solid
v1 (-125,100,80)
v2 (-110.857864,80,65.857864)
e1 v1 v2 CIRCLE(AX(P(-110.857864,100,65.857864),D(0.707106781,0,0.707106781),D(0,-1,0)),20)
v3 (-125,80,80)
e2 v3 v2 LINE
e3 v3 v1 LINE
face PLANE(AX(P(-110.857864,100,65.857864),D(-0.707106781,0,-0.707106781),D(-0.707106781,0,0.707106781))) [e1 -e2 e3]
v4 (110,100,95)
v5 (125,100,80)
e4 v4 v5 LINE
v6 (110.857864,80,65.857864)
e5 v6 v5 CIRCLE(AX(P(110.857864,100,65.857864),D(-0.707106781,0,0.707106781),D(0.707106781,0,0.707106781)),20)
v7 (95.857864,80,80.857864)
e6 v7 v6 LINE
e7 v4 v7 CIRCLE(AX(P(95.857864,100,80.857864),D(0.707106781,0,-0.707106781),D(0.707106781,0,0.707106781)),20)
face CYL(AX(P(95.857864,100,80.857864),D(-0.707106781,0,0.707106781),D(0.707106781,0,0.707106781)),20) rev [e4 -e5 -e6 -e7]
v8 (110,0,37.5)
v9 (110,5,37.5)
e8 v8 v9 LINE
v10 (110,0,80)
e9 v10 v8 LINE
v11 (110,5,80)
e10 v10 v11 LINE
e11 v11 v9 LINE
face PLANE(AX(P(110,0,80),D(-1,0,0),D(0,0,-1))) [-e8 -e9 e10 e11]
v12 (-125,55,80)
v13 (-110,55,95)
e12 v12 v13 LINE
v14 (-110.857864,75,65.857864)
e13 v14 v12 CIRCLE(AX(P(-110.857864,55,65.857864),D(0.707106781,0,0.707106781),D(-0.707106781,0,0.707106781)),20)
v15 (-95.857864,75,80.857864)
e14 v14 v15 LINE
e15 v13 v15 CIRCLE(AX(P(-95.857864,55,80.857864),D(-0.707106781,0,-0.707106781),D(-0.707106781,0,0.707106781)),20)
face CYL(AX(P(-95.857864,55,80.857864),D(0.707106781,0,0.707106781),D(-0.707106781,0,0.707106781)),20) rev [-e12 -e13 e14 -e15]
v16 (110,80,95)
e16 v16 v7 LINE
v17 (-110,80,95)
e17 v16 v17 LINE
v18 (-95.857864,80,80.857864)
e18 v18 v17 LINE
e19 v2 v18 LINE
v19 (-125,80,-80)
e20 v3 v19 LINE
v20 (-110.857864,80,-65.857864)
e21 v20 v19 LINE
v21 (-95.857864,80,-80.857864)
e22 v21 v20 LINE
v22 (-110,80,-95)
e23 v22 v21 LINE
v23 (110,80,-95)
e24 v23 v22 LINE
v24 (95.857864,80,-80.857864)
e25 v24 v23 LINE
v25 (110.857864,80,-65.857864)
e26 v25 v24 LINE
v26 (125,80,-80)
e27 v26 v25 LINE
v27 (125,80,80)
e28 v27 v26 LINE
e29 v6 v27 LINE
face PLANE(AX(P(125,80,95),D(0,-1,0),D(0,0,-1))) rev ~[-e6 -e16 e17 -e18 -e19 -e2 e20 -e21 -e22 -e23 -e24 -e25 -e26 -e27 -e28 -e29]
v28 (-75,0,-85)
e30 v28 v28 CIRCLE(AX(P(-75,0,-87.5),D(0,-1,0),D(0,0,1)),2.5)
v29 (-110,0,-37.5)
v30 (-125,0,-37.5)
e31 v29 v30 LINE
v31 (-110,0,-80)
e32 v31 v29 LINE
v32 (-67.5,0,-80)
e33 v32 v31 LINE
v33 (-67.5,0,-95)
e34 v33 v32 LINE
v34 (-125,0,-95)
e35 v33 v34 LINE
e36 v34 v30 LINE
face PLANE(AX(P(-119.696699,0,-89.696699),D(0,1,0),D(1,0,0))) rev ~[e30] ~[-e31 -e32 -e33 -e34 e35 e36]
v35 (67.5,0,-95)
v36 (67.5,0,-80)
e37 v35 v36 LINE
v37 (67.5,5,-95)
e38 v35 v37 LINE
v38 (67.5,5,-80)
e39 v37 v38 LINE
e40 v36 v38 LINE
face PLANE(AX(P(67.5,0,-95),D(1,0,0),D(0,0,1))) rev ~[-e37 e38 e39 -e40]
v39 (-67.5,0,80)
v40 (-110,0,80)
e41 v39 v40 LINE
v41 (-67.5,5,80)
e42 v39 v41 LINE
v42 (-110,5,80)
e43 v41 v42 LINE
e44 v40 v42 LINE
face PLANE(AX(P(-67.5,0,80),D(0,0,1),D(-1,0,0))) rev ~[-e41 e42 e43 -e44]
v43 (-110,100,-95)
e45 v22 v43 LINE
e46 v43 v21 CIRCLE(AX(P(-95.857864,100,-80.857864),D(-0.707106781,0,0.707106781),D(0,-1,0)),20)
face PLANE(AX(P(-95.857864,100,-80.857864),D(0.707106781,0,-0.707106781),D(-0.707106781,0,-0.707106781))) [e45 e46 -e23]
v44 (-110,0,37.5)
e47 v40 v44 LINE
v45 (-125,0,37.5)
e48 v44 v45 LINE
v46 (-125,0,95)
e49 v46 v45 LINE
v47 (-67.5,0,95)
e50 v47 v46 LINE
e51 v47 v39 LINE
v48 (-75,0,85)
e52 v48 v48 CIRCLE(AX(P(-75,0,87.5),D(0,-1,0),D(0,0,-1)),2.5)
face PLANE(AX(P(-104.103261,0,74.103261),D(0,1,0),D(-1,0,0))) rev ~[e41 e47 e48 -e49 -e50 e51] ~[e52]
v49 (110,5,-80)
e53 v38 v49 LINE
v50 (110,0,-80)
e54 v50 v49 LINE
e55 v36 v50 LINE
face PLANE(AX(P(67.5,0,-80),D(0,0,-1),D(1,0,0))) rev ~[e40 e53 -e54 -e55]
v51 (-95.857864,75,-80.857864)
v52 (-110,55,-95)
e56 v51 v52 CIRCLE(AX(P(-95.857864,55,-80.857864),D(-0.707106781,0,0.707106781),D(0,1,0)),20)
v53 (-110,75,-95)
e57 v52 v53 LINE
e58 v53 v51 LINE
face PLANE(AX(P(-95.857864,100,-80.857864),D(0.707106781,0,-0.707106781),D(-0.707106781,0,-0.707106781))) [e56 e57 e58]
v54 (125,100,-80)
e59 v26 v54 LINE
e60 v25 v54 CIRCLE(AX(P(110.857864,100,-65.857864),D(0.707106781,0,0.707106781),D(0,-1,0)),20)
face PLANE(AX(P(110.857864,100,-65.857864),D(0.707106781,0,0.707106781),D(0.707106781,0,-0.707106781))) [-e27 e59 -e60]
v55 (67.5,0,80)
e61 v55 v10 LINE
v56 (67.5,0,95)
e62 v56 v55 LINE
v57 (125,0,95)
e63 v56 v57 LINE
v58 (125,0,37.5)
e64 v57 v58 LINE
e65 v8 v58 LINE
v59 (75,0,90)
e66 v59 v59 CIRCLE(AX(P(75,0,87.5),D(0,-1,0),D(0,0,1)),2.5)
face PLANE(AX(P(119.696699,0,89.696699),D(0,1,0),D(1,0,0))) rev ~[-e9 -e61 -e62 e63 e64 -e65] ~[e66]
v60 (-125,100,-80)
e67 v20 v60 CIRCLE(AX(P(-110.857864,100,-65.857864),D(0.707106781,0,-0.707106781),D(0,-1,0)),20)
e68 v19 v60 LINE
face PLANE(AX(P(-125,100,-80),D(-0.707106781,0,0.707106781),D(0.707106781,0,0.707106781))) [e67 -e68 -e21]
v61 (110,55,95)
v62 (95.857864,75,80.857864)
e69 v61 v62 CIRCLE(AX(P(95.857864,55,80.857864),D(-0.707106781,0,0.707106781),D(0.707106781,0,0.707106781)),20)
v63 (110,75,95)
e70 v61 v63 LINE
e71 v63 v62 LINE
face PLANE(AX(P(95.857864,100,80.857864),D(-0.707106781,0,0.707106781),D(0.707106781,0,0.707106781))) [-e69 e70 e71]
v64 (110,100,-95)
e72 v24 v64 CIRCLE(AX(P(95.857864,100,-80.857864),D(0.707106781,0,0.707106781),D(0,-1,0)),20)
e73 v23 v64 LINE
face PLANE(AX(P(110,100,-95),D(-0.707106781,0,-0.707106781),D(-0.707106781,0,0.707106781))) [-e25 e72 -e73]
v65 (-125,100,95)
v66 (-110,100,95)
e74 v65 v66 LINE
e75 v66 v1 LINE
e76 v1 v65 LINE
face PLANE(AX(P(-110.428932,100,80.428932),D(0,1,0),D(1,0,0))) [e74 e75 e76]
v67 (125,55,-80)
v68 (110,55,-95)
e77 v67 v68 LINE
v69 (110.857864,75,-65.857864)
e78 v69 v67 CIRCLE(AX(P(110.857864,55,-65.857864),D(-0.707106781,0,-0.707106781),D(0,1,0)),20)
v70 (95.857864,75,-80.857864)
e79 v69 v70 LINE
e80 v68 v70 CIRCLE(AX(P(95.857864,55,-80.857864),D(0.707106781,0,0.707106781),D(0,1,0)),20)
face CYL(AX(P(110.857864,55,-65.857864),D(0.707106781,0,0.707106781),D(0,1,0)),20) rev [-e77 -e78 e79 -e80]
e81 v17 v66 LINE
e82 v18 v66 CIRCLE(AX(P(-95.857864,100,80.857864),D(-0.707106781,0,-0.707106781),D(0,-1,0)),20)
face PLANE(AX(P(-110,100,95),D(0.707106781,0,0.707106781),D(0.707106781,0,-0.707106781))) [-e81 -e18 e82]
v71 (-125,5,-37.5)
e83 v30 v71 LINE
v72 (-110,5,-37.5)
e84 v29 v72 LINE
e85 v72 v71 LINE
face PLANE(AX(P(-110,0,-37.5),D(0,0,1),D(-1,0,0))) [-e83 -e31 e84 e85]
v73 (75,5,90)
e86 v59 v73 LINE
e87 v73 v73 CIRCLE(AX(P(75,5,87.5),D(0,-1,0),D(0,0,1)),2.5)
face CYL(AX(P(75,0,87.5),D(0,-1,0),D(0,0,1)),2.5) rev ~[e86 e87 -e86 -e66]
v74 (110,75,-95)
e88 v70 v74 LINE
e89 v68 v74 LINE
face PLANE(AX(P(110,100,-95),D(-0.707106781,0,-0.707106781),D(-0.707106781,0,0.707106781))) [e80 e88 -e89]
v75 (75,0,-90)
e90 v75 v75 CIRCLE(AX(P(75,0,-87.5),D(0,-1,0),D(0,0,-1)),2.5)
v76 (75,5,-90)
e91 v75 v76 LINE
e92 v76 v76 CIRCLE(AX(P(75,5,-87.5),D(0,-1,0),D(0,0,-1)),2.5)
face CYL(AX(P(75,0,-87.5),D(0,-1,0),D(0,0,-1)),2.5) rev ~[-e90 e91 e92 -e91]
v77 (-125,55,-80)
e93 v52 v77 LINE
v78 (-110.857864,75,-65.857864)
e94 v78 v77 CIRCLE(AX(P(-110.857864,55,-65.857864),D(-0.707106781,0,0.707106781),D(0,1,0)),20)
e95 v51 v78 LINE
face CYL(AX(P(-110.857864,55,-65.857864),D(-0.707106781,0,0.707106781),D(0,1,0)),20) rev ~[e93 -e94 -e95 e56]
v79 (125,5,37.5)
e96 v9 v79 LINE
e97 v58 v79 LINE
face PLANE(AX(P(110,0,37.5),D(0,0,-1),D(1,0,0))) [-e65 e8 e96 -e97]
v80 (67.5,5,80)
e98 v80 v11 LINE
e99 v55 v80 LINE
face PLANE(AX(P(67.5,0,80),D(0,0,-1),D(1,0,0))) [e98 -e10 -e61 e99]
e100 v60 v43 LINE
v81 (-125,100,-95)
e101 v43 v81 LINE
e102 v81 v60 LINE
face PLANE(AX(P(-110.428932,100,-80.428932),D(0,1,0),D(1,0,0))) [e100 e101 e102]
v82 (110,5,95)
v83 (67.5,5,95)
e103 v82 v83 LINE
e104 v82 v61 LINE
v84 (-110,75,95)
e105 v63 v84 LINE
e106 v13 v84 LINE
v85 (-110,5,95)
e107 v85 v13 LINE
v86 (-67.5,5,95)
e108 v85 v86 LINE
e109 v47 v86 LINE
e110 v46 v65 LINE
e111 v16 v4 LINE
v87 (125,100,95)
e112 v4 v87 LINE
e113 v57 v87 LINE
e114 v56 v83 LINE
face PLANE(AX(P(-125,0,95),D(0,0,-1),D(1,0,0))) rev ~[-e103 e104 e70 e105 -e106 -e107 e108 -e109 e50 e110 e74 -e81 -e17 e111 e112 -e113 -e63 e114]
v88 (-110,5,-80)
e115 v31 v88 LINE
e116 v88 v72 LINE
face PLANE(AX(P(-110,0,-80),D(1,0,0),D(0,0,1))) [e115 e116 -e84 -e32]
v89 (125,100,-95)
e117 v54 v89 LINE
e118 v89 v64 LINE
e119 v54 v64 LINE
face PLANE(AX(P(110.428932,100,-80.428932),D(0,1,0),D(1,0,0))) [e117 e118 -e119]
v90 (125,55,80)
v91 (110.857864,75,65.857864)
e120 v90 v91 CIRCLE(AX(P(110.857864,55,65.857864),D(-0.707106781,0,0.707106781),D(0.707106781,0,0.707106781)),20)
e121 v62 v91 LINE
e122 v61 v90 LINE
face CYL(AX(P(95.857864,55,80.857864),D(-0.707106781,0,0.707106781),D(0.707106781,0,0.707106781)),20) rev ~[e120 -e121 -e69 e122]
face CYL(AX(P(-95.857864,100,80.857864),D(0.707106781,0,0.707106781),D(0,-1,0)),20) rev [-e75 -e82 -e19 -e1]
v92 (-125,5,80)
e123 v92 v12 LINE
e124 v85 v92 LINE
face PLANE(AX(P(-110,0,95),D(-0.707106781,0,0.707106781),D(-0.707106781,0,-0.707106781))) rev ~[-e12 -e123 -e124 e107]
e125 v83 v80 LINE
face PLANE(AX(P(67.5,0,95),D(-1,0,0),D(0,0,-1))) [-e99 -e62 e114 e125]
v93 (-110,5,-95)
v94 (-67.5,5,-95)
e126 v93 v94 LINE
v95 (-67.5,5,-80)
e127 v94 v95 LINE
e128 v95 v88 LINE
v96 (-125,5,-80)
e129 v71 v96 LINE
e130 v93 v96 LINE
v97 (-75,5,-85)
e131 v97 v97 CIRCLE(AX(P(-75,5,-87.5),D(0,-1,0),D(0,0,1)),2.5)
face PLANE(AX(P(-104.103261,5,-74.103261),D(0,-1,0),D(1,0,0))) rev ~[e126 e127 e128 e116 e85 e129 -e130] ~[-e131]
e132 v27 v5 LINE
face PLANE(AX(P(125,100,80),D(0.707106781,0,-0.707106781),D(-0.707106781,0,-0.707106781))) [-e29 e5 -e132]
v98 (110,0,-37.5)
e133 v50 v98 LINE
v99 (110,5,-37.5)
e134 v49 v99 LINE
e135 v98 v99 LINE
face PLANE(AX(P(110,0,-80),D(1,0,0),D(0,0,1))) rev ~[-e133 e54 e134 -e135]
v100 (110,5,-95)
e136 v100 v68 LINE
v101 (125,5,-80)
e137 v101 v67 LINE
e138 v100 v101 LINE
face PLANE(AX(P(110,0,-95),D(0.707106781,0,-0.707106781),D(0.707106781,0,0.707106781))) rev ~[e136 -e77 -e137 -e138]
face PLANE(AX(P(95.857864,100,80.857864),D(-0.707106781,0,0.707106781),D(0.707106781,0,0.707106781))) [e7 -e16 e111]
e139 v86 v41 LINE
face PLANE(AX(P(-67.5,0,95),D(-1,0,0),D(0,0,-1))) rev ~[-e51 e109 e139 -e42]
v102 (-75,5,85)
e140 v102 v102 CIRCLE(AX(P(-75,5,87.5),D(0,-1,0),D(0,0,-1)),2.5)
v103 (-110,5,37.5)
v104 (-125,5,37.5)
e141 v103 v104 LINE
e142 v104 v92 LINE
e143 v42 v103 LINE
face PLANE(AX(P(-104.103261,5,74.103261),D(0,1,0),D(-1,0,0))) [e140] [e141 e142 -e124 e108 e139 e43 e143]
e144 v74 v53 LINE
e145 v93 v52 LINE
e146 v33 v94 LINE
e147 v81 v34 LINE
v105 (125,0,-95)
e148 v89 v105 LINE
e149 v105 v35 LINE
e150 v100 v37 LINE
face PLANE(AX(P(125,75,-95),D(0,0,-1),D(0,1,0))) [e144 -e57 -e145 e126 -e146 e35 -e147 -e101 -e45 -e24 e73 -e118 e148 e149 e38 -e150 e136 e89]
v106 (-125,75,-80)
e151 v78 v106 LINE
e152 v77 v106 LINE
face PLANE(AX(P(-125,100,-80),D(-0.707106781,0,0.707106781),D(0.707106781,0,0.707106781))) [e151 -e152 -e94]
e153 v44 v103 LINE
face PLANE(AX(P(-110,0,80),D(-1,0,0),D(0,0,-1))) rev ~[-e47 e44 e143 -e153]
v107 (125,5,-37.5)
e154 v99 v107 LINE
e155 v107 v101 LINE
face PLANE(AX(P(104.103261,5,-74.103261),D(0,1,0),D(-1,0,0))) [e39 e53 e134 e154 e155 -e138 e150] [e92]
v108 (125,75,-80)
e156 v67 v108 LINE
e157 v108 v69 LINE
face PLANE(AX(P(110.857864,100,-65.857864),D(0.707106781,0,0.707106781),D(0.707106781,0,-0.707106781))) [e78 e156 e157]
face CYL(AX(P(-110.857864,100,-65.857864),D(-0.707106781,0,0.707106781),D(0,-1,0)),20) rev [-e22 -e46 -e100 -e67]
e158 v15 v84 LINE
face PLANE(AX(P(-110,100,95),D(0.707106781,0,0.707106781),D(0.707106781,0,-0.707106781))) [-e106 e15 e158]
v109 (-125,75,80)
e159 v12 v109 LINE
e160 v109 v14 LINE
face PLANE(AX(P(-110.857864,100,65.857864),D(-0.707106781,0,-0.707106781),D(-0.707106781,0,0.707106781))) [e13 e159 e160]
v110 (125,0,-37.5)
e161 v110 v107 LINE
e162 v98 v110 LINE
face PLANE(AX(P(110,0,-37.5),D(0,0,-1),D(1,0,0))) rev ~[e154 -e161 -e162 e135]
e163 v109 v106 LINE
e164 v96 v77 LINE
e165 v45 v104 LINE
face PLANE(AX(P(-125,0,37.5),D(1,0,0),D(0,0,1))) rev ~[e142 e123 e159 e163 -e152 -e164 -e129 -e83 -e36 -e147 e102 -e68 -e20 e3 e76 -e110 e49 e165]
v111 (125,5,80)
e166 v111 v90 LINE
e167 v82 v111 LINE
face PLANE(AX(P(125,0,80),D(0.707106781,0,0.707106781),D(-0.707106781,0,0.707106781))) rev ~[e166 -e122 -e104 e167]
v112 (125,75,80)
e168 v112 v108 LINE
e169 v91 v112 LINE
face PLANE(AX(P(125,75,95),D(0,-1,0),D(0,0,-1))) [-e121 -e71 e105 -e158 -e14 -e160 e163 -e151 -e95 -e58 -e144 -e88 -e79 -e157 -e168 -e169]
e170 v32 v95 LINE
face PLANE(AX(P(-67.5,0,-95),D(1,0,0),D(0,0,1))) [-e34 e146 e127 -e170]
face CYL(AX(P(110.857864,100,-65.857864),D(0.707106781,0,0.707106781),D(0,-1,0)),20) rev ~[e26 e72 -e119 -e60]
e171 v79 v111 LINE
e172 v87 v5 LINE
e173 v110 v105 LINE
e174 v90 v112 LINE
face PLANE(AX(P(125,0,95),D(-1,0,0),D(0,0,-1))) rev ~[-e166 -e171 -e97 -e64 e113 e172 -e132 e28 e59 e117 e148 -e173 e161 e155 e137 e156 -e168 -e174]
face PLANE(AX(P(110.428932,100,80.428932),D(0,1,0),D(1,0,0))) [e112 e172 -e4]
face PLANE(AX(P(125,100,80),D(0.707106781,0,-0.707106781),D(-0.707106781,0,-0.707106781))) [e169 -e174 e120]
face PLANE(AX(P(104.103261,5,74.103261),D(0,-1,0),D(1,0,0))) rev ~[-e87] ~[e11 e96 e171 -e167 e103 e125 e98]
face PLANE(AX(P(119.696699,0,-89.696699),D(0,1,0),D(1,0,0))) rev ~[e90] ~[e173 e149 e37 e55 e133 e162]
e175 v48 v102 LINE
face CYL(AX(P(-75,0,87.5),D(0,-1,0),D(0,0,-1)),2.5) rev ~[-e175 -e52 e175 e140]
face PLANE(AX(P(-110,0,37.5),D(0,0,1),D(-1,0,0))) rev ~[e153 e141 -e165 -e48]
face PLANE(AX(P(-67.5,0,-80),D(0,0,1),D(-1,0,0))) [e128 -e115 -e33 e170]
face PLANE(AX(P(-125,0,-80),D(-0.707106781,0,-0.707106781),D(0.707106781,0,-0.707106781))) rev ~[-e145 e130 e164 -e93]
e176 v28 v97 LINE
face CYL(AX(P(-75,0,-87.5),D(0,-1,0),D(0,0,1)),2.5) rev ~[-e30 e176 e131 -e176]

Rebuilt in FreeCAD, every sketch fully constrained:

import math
import FreeCAD as App
import Part
import Sketcher
Q = App.Units.Quantity


def add_polygon(sketch, points):
    """Adds a closed chain of lines whose ends are joined by coincident constraints."""
    first, n = sketch.GeometryCount, len(points)
    for a, b in zip(points, points[1:] + points[:1]):
        sketch.addGeometry(Part.LineSegment(App.Vector(*a, 0), App.Vector(*b, 0)), False)
    for i in range(n):
        sketch.addConstraint(Sketcher.Constraint("Coincident", first + i, 2, first + (i + 1) % n, 1))

doc = App.newDocument("Part")
body = doc.addObject("PartDesign::Body", "Body")

sketch1 = body.newObject("Sketcher::SketchObject", "Sketch")
sketch1.AttachmentSupport = (doc.getObject("XZ_Plane"), [""])
sketch1.MapMode = "FlatFace"
add_polygon(sketch1, [(-125, -95), (-125, -80), (-110, -95)])
sketch1.addConstraint(Sketcher.Constraint("Vertical", 0))
sketch1.addConstraint(Sketcher.Constraint("Horizontal", 2))
sketch1.addConstraint(Sketcher.Constraint("Equal", 2, 0))
sketch1.addConstraint(Sketcher.Constraint("DistanceX", 2, 2, 2, 1, Q("15 mm")))
sketch1.addConstraint(Sketcher.Constraint("DistanceX", 0, 2, -1, 1, Q("125 mm")))
sketch1.addConstraint(Sketcher.Constraint("DistanceY", 0, 2, -1, 1, Q("80 mm")))
pad1 = body.newObject("PartDesign::Pad", "Pad")
pad1.Profile = sketch1
pad1.Length = 100
pad1.Reversed = True
body2 = doc.addObject("PartDesign::Body", "Body001")

sketch2 = body2.newObject("Sketcher::SketchObject", "Sketch001")
sketch2.AttachmentSupport = (doc.getObject("XZ_Plane001"), [""])
sketch2.MapMode = "FlatFace"
add_polygon(sketch2, [(125, -95), (110, -95), (125, -80)])
sketch2.addConstraint(Sketcher.Constraint("Horizontal", 0))
sketch2.addConstraint(Sketcher.Constraint("Vertical", 2))
sketch2.addConstraint(Sketcher.Constraint("Equal", 0, 2))
sketch2.addConstraint(Sketcher.Constraint("DistanceX", 0, 2, 0, 1, Q("15 mm")))
sketch2.addConstraint(Sketcher.Constraint("DistanceX", -1, 1, 0, 2, Q("110 mm")))
sketch2.addConstraint(Sketcher.Constraint("DistanceY", 0, 2, -1, 1, Q("95 mm")))
pad2 = body2.newObject("PartDesign::Pad", "Pad001")
pad2.Profile = sketch2
pad2.Length = 100
pad2.Reversed = True
body3 = doc.addObject("PartDesign::Body", "Body002")

sketch3 = body3.newObject("Sketcher::SketchObject", "Sketch002")
sketch3.AttachmentSupport = (doc.getObject("XZ_Plane002"), [""])
sketch3.MapMode = "FlatFace"
add_polygon(sketch3, [(125, 95), (125, 80), (110, 95)])
sketch3.addConstraint(Sketcher.Constraint("Vertical", 0))
sketch3.addConstraint(Sketcher.Constraint("Horizontal", 2))
sketch3.addConstraint(Sketcher.Constraint("Equal", 2, 0))
sketch3.addConstraint(Sketcher.Constraint("DistanceX", 2, 1, 2, 2, Q("15 mm")))
sketch3.addConstraint(Sketcher.Constraint("DistanceX", -1, 1, 0, 2, Q("125 mm")))
sketch3.addConstraint(Sketcher.Constraint("DistanceY", -1, 1, 0, 2, Q("80 mm")))
pad3 = body3.newObject("PartDesign::Pad", "Pad002")
pad3.Profile = sketch3
pad3.Length = 100
pad3.Reversed = True
body4 = doc.addObject("PartDesign::Body", "Body003")

sketch4 = body4.newObject("Sketcher::SketchObject", "Sketch003")
sketch4.AttachmentSupport = (doc.getObject("XZ_Plane003"), [""])
sketch4.MapMode = "FlatFace"
add_polygon(sketch4, [(-125, 95), (-110, 95), (-125, 80)])
sketch4.addConstraint(Sketcher.Constraint("Horizontal", 0))
sketch4.addConstraint(Sketcher.Constraint("Vertical", 2))
sketch4.addConstraint(Sketcher.Constraint("Equal", 0, 2))
sketch4.addConstraint(Sketcher.Constraint("DistanceX", 0, 1, 0, 2, Q("15 mm")))
sketch4.addConstraint(Sketcher.Constraint("DistanceX", 0, 2, -1, 1, Q("110 mm")))
sketch4.addConstraint(Sketcher.Constraint("DistanceY", -1, 1, 0, 2, Q("95 mm")))
pad4 = body4.newObject("PartDesign::Pad", "Pad003")
pad4.Profile = sketch4
pad4.Length = 100
pad4.Reversed = True
body.AllowCompound = True
doc.recompute()

boolean = body.newObject("PartDesign::Boolean", "Boolean")
boolean.Type = "Fuse"
boolean.addObjects([body2])
doc.recompute()

boolean2 = body.newObject("PartDesign::Boolean", "Boolean001")
boolean2.Type = "Fuse"
boolean2.addObjects([body3])
doc.recompute()

boolean3 = body.newObject("PartDesign::Boolean", "Boolean002")
boolean3.Type = "Fuse"
boolean3.addObjects([body4])

sketch5 = body.newObject("Sketcher::SketchObject", "Sketch004")
sketch5.AttachmentSupport = (doc.getObject("YZ_Plane"), [""])
sketch5.MapMode = "FlatFace"
sketch5.AttachmentOffset = App.Placement(App.Vector(0, 0, 125), App.Rotation())
add_polygon(sketch5, [(80, 95), (75, 95), (75, -95), (80, -95)])
sketch5.addConstraint(Sketcher.Constraint("Horizontal", 0))
sketch5.addConstraint(Sketcher.Constraint("Vertical", 1))
sketch5.addConstraint(Sketcher.Constraint("Horizontal", 2))
sketch5.addConstraint(Sketcher.Constraint("Vertical", 3))
sketch5.addConstraint(Sketcher.Constraint("DistanceX", 0, 2, 0, 1, Q("5 mm")))
sketch5.addConstraint(Sketcher.Constraint("DistanceY", 1, 2, 1, 1, Q("190 mm")))
sketch5.addConstraint(Sketcher.Constraint("DistanceX", -1, 1, 0, 2, Q("75 mm")))
sketch5.addConstraint(Sketcher.Constraint("DistanceY", -1, 1, 0, 2, Q("95 mm")))
pad5 = body.newObject("PartDesign::Pad", "Pad004")
pad5.Profile = sketch5
pad5.Length = 250
pad5.Reversed = True

sketch6 = body.newObject("Sketcher::SketchObject", "Sketch005")
sketch6.AttachmentSupport = (doc.getObject("XZ_Plane"), [""])
sketch6.MapMode = "FlatFace"
add_polygon(sketch6, [(-110, 37.5), (-110, 80), (-67.5, 80), (-67.5, 95), (-125, 95), (-125, 37.5)])
sketch6.addGeometry(Part.Circle(App.Vector(-75, 87.5, 0), App.Vector(0, 0, 1), 2.5), False)
add_polygon(sketch6, [(125, 95), (67.5, 95), (67.5, 80), (110, 80), (110, 37.5), (125, 37.5)])
sketch6.addGeometry(Part.Circle(App.Vector(75, 87.5, 0), App.Vector(0, 0, 1), 2.5), False)
add_polygon(sketch6, [(110, -37.5), (110, -80), (67.5, -80), (67.5, -95), (125, -95), (125, -37.5)])
sketch6.addGeometry(Part.Circle(App.Vector(75, -87.5, 0), App.Vector(0, 0, 1), 2.5), False)
add_polygon(sketch6, [(-125, -95), (-67.5, -95), (-67.5, -80), (-110, -80), (-110, -37.5), (-125, -37.5)])
sketch6.addGeometry(Part.Circle(App.Vector(-75, -87.5, 0), App.Vector(0, 0, 1), 2.5), False)
sketch6.addConstraint(Sketcher.Constraint("Vertical", 0))
sketch6.addConstraint(Sketcher.Constraint("Horizontal", 1))
sketch6.addConstraint(Sketcher.Constraint("Vertical", 2))
sketch6.addConstraint(Sketcher.Constraint("Horizontal", 3))
sketch6.addConstraint(Sketcher.Constraint("Vertical", 4))
sketch6.addConstraint(Sketcher.Constraint("Horizontal", 5))
sketch6.addConstraint(Sketcher.Constraint("Horizontal", 7))
sketch6.addConstraint(Sketcher.Constraint("Vertical", 8))
sketch6.addConstraint(Sketcher.Constraint("Horizontal", 9))
sketch6.addConstraint(Sketcher.Constraint("Vertical", 10))
sketch6.addConstraint(Sketcher.Constraint("Horizontal", 11))
sketch6.addConstraint(Sketcher.Constraint("Vertical", 12))
sketch6.addConstraint(Sketcher.Constraint("Vertical", 14))
sketch6.addConstraint(Sketcher.Constraint("Horizontal", 15))
sketch6.addConstraint(Sketcher.Constraint("Vertical", 16))
sketch6.addConstraint(Sketcher.Constraint("Horizontal", 17))
sketch6.addConstraint(Sketcher.Constraint("Vertical", 18))
sketch6.addConstraint(Sketcher.Constraint("Horizontal", 19))
sketch6.addConstraint(Sketcher.Constraint("Horizontal", 21))
sketch6.addConstraint(Sketcher.Constraint("Vertical", 22))
sketch6.addConstraint(Sketcher.Constraint("Horizontal", 23))
sketch6.addConstraint(Sketcher.Constraint("Vertical", 24))
sketch6.addConstraint(Sketcher.Constraint("Horizontal", 25))
sketch6.addConstraint(Sketcher.Constraint("Vertical", 26))
sketch6.addConstraint(Sketcher.Constraint("Equal", 6, 13))
sketch6.addConstraint(Sketcher.Constraint("Equal", 13, 20))
sketch6.addConstraint(Sketcher.Constraint("Equal", 20, 27))
sketch6.addConstraint(Sketcher.Constraint("Symmetric", 6, 3, 20, 3, -1, 1))
sketch6.addConstraint(Sketcher.Constraint("Symmetric", 13, 3, 27, 3, -1, 1))
sketch6.addConstraint(Sketcher.Constraint("Symmetric", 0, 2, 14, 2, -1, 1))
sketch6.addConstraint(Sketcher.Constraint("Symmetric", 2, 2, 16, 2, -1, 1))
sketch6.addConstraint(Sketcher.Constraint("Symmetric", 4, 2, 18, 2, -1, 1))
sketch6.addConstraint(Sketcher.Constraint("Symmetric", 7, 2, 21, 2, -1, 1))
sketch6.addConstraint(Sketcher.Constraint("Symmetric", 9, 2, 23, 2, -1, 1))
sketch6.addConstraint(Sketcher.Constraint("Symmetric", 11, 2, 25, 2, -1, 1))
sketch6.addConstraint(Sketcher.Constraint("Symmetric", 6, 3, 13, 3, -2))
sketch6.addConstraint(Sketcher.Constraint("Symmetric", 2, 2, 7, 2, -2))
sketch6.addConstraint(Sketcher.Constraint("Symmetric", 0, 2, 9, 2, -2))
sketch6.addConstraint(Sketcher.Constraint("Symmetric", 4, 2, 11, 2, -2))
sketch6.addConstraint(Sketcher.Constraint("Equal", 23, 0))
sketch6.addConstraint(Sketcher.Constraint("Equal", 25, 2))
sketch6.addConstraint(Sketcher.Constraint("Diameter", 6, Q("5 mm")))
sketch6.addConstraint(Sketcher.Constraint("DistanceX", 5, 1, 5, 2, Q("15 mm")))
sketch6.addConstraint(Sketcher.Constraint("DistanceX", 1, 1, 1, 2, Q("42.5 mm")))
sketch6.addConstraint(Sketcher.Constraint("DistanceX", 6, 3, -1, 1, Q("75 mm")))
sketch6.addConstraint(Sketcher.Constraint("DistanceX", 0, 2, -1, 1, Q("110 mm")))
sketch6.addConstraint(Sketcher.Constraint("DistanceY", -1, 1, 0, 2, Q("80 mm")))
sketch6.addConstraint(Sketcher.Constraint("DistanceY", 20, 3, 13, 3, Q("175 mm")))
pad6 = body.newObject("PartDesign::Pad", "Pad005")
pad6.Profile = sketch6
pad6.Length = 5
pad6.Reversed = True

sketch7 = body.newObject("Sketcher::SketchObject", "Sketch006")
sketch7.AttachmentSupport = (doc.getObject("XZ_Plane"), [""])
sketch7.MapMode = "FlatFace"
sketch7.AttachmentOffset = App.Placement(App.Vector(0, 0, -100), App.Rotation())
add_polygon(sketch7, [(-110, -95), (-125, -80), (-110.857864, -65.857864), (-95.857864, -80.857864)])
add_polygon(sketch7, [(110, -95), (95.857864, -80.857864), (110.857864, -65.857864), (125, -80)])
add_polygon(sketch7, [(110, 95), (125, 80), (110.857864, 65.857864), (95.857864, 80.857864)])
add_polygon(sketch7, [(-110, 95), (-95.857864, 80.857864), (-110.857864, 65.857864), (-125, 80)])
sketch7.addConstraint(Sketcher.Constraint("Symmetric", 0, 2, 8, 2, -1, 1))
sketch7.addConstraint(Sketcher.Constraint("Symmetric", 1, 2, 9, 2, -1, 1))
sketch7.addConstraint(Sketcher.Constraint("Symmetric", 2, 2, 10, 2, -1, 1))
sketch7.addConstraint(Sketcher.Constraint("Symmetric", 3, 2, 11, 2, -1, 1))
sketch7.addConstraint(Sketcher.Constraint("Symmetric", 4, 2, 12, 2, -1, 1))
sketch7.addConstraint(Sketcher.Constraint("Symmetric", 5, 2, 13, 2, -1, 1))
sketch7.addConstraint(Sketcher.Constraint("Symmetric", 6, 2, 14, 2, -1, 1))
sketch7.addConstraint(Sketcher.Constraint("Symmetric", 7, 2, 15, 2, -1, 1))
sketch7.addConstraint(Sketcher.Constraint("Symmetric", 2, 2, 4, 2, -2))
sketch7.addConstraint(Sketcher.Constraint("Symmetric", 1, 2, 5, 2, -2))
sketch7.addConstraint(Sketcher.Constraint("Symmetric", 0, 2, 6, 2, -2))
sketch7.addConstraint(Sketcher.Constraint("Symmetric", 3, 2, 7, 2, -2))
sketch7.addConstraint(Sketcher.Constraint("Perpendicular", 0, 1))
sketch7.addConstraint(Sketcher.Constraint("Perpendicular", 1, 2))
sketch7.addConstraint(Sketcher.Constraint("Perpendicular", 2, 3))
sketch7.addConstraint(Sketcher.Constraint("Perpendicular", 3, 4))
sketch7.addConstraint(Sketcher.Constraint("Distance", 1, Q("20 mm")))
sketch7.addConstraint(Sketcher.Constraint("DistanceX", 0, 2, -1, 1, Q("125 mm")))
sketch7.addConstraint(Sketcher.Constraint("DistanceY", 0, 2, -1, 1, Q("80 mm")))
sketch7.addConstraint(Sketcher.Constraint("DistanceX", 3, 2, -1, 1, Q("110 mm")))
pad7 = body.newObject("PartDesign::Pad", "Pad006")
pad7.Profile = sketch7
pad7.Length = 45

sketch8 = body.newObject("Sketcher::SketchObject", "Sketch007")
sketch8.Placement = App.Placement(App.Vector(7.5, 0, -7.5), App.Rotation(App.Vector(0.707106781, 0, 0.707106781), App.Vector(0, 0.999999999, 0), App.Vector(-0.707106781, 0, 0.707106781), "ZXY"))
sketch8.addGeometry(Part.LineSegment(App.Vector(124.95689, 100, 0), App.Vector(124.95689, 80, 0)), False)
sketch8.addGeometry(Part.ArcOfCircle(Part.Circle(App.Vector(124.95689, 100, 0), App.Vector(0, 0, 1), 20), math.radians(-90), math.radians(0)), False)
sketch8.addGeometry(Part.LineSegment(App.Vector(144.95689, 100, 0), App.Vector(124.95689, 100, 0)), False)
sketch8.addConstraint(Sketcher.Constraint("Coincident", 0, 2, 1, 1))
sketch8.addConstraint(Sketcher.Constraint("Coincident", 1, 2, 2, 1))
sketch8.addConstraint(Sketcher.Constraint("Coincident", 2, 2, 0, 1))
sketch8.addConstraint(Sketcher.Constraint("Vertical", 0))
sketch8.addConstraint(Sketcher.Constraint("Horizontal", 2))
sketch8.addConstraint(Sketcher.Constraint("Coincident", 2, 2, 1, 3))
sketch8.addConstraint(Sketcher.Constraint("Radius", 1, Q("20 mm")))
sketch8.addConstraint(Sketcher.Constraint("DistanceY", -1, 1, 1, 3, Q("100 mm")))
sketch8.addConstraint(Sketcher.Constraint("DistanceX", -1, 1, 1, 3, Q("124.95689 mm")))
pocket1 = body.newObject("PartDesign::Pocket", "Pocket")
pocket1.Profile = sketch8
pocket1.Type = "UpToFirst"

sketch9 = body.newObject("Sketcher::SketchObject", "Sketch008")
sketch9.Placement = App.Placement(App.Vector(7.5, 0, -7.5), App.Rotation(App.Vector(0.707106781, 0, 0.707106781), App.Vector(0, 0.999999999, 0), App.Vector(-0.707106781, 0, 0.707106781), "ZXY"))
sketch9.addGeometry(Part.LineSegment(App.Vector(124.95689, 75, 0), App.Vector(124.95689, 55, 0)), False)
sketch9.addGeometry(Part.LineSegment(App.Vector(124.95689, 55, 0), App.Vector(144.95689, 55, 0)), False)
sketch9.addGeometry(Part.ArcOfCircle(Part.Circle(App.Vector(124.95689, 55, 0), App.Vector(0, 0, 1), 20), math.radians(0), math.radians(90)), False)
sketch9.addConstraint(Sketcher.Constraint("Coincident", 0, 2, 1, 1))
sketch9.addConstraint(Sketcher.Constraint("Coincident", 1, 2, 2, 1))
sketch9.addConstraint(Sketcher.Constraint("Coincident", 2, 2, 0, 1))
sketch9.addConstraint(Sketcher.Constraint("Vertical", 0))
sketch9.addConstraint(Sketcher.Constraint("Horizontal", 1))
sketch9.addConstraint(Sketcher.Constraint("Coincident", 0, 2, 2, 3))
sketch9.addConstraint(Sketcher.Constraint("Radius", 2, Q("20 mm")))
sketch9.addConstraint(Sketcher.Constraint("DistanceY", -1, 1, 2, 3, Q("55 mm")))
sketch9.addConstraint(Sketcher.Constraint("DistanceX", -1, 1, 2, 3, Q("124.95689 mm")))
pocket2 = body.newObject("PartDesign::Pocket", "Pocket001")
pocket2.Profile = sketch9
pocket2.Type = "UpToFirst"

sketch10 = body.newObject("Sketcher::SketchObject", "Sketch009")
sketch10.Placement = App.Placement(App.Vector(22.5, 0, 22.5), App.Rotation(App.Vector(0.707106781, 0, -0.707106781), App.Vector(0, 0.999999999, 0), App.Vector(0.707106781, 0, 0.707106781), "ZXY"))
sketch10.addGeometry(Part.LineSegment(App.Vector(144.95689, 100, 0), App.Vector(124.95689, 100, 0)), False)
sketch10.addGeometry(Part.LineSegment(App.Vector(124.95689, 100, 0), App.Vector(124.95689, 80, 0)), False)
sketch10.addGeometry(Part.ArcOfCircle(Part.Circle(App.Vector(124.95689, 100, 0), App.Vector(0, 0, 1), 20), math.radians(-90), math.radians(0)), False)
sketch10.addConstraint(Sketcher.Constraint("Coincident", 0, 2, 1, 1))
sketch10.addConstraint(Sketcher.Constraint("Coincident", 1, 2, 2, 1))
sketch10.addConstraint(Sketcher.Constraint("Coincident", 2, 2, 0, 1))
sketch10.addConstraint(Sketcher.Constraint("Horizontal", 0))
sketch10.addConstraint(Sketcher.Constraint("Vertical", 1))
sketch10.addConstraint(Sketcher.Constraint("Coincident", 0, 2, 2, 3))
sketch10.addConstraint(Sketcher.Constraint("Radius", 2, Q("20 mm")))
sketch10.addConstraint(Sketcher.Constraint("DistanceY", -1, 1, 2, 3, Q("100 mm")))
sketch10.addConstraint(Sketcher.Constraint("DistanceX", -1, 1, 2, 3, Q("124.95689 mm")))
pocket3 = body.newObject("PartDesign::Pocket", "Pocket002")
pocket3.Profile = sketch10
pocket3.Type = "UpToFirst"

sketch11 = body.newObject("Sketcher::SketchObject", "Sketch010")
sketch11.Placement = App.Placement(App.Vector(22.5, 0, 22.5), App.Rotation(App.Vector(0.707106781, 0, -0.707106781), App.Vector(0, 0.999999999, 0), App.Vector(0.707106781, 0, 0.707106781), "ZXY"))
sketch11.addGeometry(Part.LineSegment(App.Vector(124.95689, 55, 0), App.Vector(144.95689, 55, 0)), False)
sketch11.addGeometry(Part.ArcOfCircle(Part.Circle(App.Vector(124.95689, 55, 0), App.Vector(0, 0, 1), 20), math.radians(0), math.radians(90)), False)
sketch11.addGeometry(Part.LineSegment(App.Vector(124.95689, 75, 0), App.Vector(124.95689, 55, 0)), False)
sketch11.addConstraint(Sketcher.Constraint("Coincident", 0, 2, 1, 1))
sketch11.addConstraint(Sketcher.Constraint("Coincident", 1, 2, 2, 1))
sketch11.addConstraint(Sketcher.Constraint("Coincident", 2, 2, 0, 1))
sketch11.addConstraint(Sketcher.Constraint("Horizontal", 0))
sketch11.addConstraint(Sketcher.Constraint("Vertical", 2))
sketch11.addConstraint(Sketcher.Constraint("Coincident", 2, 2, 1, 3))
sketch11.addConstraint(Sketcher.Constraint("Radius", 1, Q("20 mm")))
sketch11.addConstraint(Sketcher.Constraint("DistanceY", -1, 1, 1, 3, Q("55 mm")))
sketch11.addConstraint(Sketcher.Constraint("DistanceX", -1, 1, 1, 3, Q("124.95689 mm")))
pocket4 = body.newObject("PartDesign::Pocket", "Pocket003")
pocket4.Profile = sketch11
pocket4.Type = "UpToFirst"

sketch12 = body.newObject("Sketcher::SketchObject", "Sketch011")
sketch12.Placement = App.Placement(App.Vector(-7.5, 0, -7.5), App.Rotation(App.Vector(0.707106781, 0, -0.707106781), App.Vector(0, 0.999999999, 0), App.Vector(0.707106781, 0, 0.707106781), "ZXY"))
sketch12.addGeometry(Part.LineSegment(App.Vector(-124.95689, 100, 0), App.Vector(-144.95689, 100, 0)), False)
sketch12.addGeometry(Part.ArcOfCircle(Part.Circle(App.Vector(-124.95689, 100, 0), App.Vector(0, 0, 1), 20), math.radians(180), math.radians(270)), False)
sketch12.addGeometry(Part.LineSegment(App.Vector(-124.95689, 80, 0), App.Vector(-124.95689, 100, 0)), False)
sketch12.addConstraint(Sketcher.Constraint("Coincident", 0, 2, 1, 1))
sketch12.addConstraint(Sketcher.Constraint("Coincident", 1, 2, 2, 1))
sketch12.addConstraint(Sketcher.Constraint("Coincident", 2, 2, 0, 1))
sketch12.addConstraint(Sketcher.Constraint("Horizontal", 0))
sketch12.addConstraint(Sketcher.Constraint("Vertical", 2))
sketch12.addConstraint(Sketcher.Constraint("Coincident", 2, 2, 1, 3))
sketch12.addConstraint(Sketcher.Constraint("Radius", 1, Q("20 mm")))
sketch12.addConstraint(Sketcher.Constraint("DistanceY", -1, 1, 1, 3, Q("100 mm")))
sketch12.addConstraint(Sketcher.Constraint("DistanceX", 1, 3, -1, 1, Q("124.95689 mm")))
pocket5 = body.newObject("PartDesign::Pocket", "Pocket004")
pocket5.Profile = sketch12
pocket5.Type = "UpToFirst"

sketch13 = body.newObject("Sketcher::SketchObject", "Sketch012")
sketch13.Placement = App.Placement(App.Vector(-7.5, 0, -7.5), App.Rotation(App.Vector(0.707106781, 0, -0.707106781), App.Vector(0, 0.999999999, 0), App.Vector(0.707106781, 0, 0.707106781), "ZXY"))
sketch13.addGeometry(Part.LineSegment(App.Vector(-124.95689, 55, 0), App.Vector(-124.95689, 75, 0)), False)
sketch13.addGeometry(Part.ArcOfCircle(Part.Circle(App.Vector(-124.95689, 55, 0), App.Vector(0, 0, 1), 20), math.radians(90), math.radians(180)), False)
sketch13.addGeometry(Part.LineSegment(App.Vector(-144.95689, 55, 0), App.Vector(-124.95689, 55, 0)), False)
sketch13.addConstraint(Sketcher.Constraint("Coincident", 0, 2, 1, 1))
sketch13.addConstraint(Sketcher.Constraint("Coincident", 1, 2, 2, 1))
sketch13.addConstraint(Sketcher.Constraint("Coincident", 2, 2, 0, 1))
sketch13.addConstraint(Sketcher.Constraint("Vertical", 0))
sketch13.addConstraint(Sketcher.Constraint("Horizontal", 2))
sketch13.addConstraint(Sketcher.Constraint("Coincident", 2, 2, 1, 3))
sketch13.addConstraint(Sketcher.Constraint("Radius", 1, Q("20 mm")))
sketch13.addConstraint(Sketcher.Constraint("DistanceY", -1, 1, 1, 3, Q("55 mm")))
sketch13.addConstraint(Sketcher.Constraint("DistanceX", 1, 3, -1, 1, Q("124.95689 mm")))
pocket6 = body.newObject("PartDesign::Pocket", "Pocket005")
pocket6.Profile = sketch13
pocket6.Type = "UpToFirst"

sketch14 = body.newObject("Sketcher::SketchObject", "Sketch013")
sketch14.Placement = App.Placement(App.Vector(-22.5, 0, 22.5), App.Rotation(App.Vector(0.707106781, 0, 0.707106781), App.Vector(0, 0.999999999, 0), App.Vector(-0.707106781, 0, 0.707106781), "ZXY"))
sketch14.addGeometry(Part.LineSegment(App.Vector(-124.95689, 100, 0), App.Vector(-144.95689, 100, 0)), False)
sketch14.addGeometry(Part.ArcOfCircle(Part.Circle(App.Vector(-124.95689, 100, 0), App.Vector(0, 0, 1), 20), math.radians(180), math.radians(270)), False)
sketch14.addGeometry(Part.LineSegment(App.Vector(-124.95689, 80, 0), App.Vector(-124.95689, 100, 0)), False)
sketch14.addConstraint(Sketcher.Constraint("Coincident", 0, 2, 1, 1))
sketch14.addConstraint(Sketcher.Constraint("Coincident", 1, 2, 2, 1))
sketch14.addConstraint(Sketcher.Constraint("Coincident", 2, 2, 0, 1))
sketch14.addConstraint(Sketcher.Constraint("Horizontal", 0))
sketch14.addConstraint(Sketcher.Constraint("Vertical", 2))
sketch14.addConstraint(Sketcher.Constraint("Coincident", 2, 2, 1, 3))
sketch14.addConstraint(Sketcher.Constraint("Radius", 1, Q("20 mm")))
sketch14.addConstraint(Sketcher.Constraint("DistanceY", -1, 1, 1, 3, Q("100 mm")))
sketch14.addConstraint(Sketcher.Constraint("DistanceX", 1, 3, -1, 1, Q("124.95689 mm")))
pocket7 = body.newObject("PartDesign::Pocket", "Pocket006")
pocket7.Profile = sketch14
pocket7.Type = "UpToFirst"

sketch15 = body.newObject("Sketcher::SketchObject", "Sketch014")
sketch15.Placement = App.Placement(App.Vector(-22.5, 0, 22.5), App.Rotation(App.Vector(0.707106781, 0, 0.707106781), App.Vector(0, 0.999999999, 0), App.Vector(-0.707106781, 0, 0.707106781), "ZXY"))
sketch15.addGeometry(Part.LineSegment(App.Vector(-144.95689, 55, 0), App.Vector(-124.95689, 55, 0)), False)
sketch15.addGeometry(Part.LineSegment(App.Vector(-124.95689, 55, 0), App.Vector(-124.95689, 75, 0)), False)
sketch15.addGeometry(Part.ArcOfCircle(Part.Circle(App.Vector(-124.95689, 55, 0), App.Vector(0, 0, 1), 20), math.radians(90), math.radians(180)), False)
sketch15.addConstraint(Sketcher.Constraint("Coincident", 0, 2, 1, 1))
sketch15.addConstraint(Sketcher.Constraint("Coincident", 1, 2, 2, 1))
sketch15.addConstraint(Sketcher.Constraint("Coincident", 2, 2, 0, 1))
sketch15.addConstraint(Sketcher.Constraint("Horizontal", 0))
sketch15.addConstraint(Sketcher.Constraint("Vertical", 1))
sketch15.addConstraint(Sketcher.Constraint("Coincident", 0, 2, 2, 3))
sketch15.addConstraint(Sketcher.Constraint("Radius", 2, Q("20 mm")))
sketch15.addConstraint(Sketcher.Constraint("DistanceY", -1, 1, 2, 3, Q("55 mm")))
sketch15.addConstraint(Sketcher.Constraint("DistanceX", 2, 3, -1, 1, Q("124.95689 mm")))
pocket8 = body.newObject("PartDesign::Pocket", "Pocket007")
pocket8.Profile = sketch15
pocket8.Type = "UpToFirst"

doc.recompute()
